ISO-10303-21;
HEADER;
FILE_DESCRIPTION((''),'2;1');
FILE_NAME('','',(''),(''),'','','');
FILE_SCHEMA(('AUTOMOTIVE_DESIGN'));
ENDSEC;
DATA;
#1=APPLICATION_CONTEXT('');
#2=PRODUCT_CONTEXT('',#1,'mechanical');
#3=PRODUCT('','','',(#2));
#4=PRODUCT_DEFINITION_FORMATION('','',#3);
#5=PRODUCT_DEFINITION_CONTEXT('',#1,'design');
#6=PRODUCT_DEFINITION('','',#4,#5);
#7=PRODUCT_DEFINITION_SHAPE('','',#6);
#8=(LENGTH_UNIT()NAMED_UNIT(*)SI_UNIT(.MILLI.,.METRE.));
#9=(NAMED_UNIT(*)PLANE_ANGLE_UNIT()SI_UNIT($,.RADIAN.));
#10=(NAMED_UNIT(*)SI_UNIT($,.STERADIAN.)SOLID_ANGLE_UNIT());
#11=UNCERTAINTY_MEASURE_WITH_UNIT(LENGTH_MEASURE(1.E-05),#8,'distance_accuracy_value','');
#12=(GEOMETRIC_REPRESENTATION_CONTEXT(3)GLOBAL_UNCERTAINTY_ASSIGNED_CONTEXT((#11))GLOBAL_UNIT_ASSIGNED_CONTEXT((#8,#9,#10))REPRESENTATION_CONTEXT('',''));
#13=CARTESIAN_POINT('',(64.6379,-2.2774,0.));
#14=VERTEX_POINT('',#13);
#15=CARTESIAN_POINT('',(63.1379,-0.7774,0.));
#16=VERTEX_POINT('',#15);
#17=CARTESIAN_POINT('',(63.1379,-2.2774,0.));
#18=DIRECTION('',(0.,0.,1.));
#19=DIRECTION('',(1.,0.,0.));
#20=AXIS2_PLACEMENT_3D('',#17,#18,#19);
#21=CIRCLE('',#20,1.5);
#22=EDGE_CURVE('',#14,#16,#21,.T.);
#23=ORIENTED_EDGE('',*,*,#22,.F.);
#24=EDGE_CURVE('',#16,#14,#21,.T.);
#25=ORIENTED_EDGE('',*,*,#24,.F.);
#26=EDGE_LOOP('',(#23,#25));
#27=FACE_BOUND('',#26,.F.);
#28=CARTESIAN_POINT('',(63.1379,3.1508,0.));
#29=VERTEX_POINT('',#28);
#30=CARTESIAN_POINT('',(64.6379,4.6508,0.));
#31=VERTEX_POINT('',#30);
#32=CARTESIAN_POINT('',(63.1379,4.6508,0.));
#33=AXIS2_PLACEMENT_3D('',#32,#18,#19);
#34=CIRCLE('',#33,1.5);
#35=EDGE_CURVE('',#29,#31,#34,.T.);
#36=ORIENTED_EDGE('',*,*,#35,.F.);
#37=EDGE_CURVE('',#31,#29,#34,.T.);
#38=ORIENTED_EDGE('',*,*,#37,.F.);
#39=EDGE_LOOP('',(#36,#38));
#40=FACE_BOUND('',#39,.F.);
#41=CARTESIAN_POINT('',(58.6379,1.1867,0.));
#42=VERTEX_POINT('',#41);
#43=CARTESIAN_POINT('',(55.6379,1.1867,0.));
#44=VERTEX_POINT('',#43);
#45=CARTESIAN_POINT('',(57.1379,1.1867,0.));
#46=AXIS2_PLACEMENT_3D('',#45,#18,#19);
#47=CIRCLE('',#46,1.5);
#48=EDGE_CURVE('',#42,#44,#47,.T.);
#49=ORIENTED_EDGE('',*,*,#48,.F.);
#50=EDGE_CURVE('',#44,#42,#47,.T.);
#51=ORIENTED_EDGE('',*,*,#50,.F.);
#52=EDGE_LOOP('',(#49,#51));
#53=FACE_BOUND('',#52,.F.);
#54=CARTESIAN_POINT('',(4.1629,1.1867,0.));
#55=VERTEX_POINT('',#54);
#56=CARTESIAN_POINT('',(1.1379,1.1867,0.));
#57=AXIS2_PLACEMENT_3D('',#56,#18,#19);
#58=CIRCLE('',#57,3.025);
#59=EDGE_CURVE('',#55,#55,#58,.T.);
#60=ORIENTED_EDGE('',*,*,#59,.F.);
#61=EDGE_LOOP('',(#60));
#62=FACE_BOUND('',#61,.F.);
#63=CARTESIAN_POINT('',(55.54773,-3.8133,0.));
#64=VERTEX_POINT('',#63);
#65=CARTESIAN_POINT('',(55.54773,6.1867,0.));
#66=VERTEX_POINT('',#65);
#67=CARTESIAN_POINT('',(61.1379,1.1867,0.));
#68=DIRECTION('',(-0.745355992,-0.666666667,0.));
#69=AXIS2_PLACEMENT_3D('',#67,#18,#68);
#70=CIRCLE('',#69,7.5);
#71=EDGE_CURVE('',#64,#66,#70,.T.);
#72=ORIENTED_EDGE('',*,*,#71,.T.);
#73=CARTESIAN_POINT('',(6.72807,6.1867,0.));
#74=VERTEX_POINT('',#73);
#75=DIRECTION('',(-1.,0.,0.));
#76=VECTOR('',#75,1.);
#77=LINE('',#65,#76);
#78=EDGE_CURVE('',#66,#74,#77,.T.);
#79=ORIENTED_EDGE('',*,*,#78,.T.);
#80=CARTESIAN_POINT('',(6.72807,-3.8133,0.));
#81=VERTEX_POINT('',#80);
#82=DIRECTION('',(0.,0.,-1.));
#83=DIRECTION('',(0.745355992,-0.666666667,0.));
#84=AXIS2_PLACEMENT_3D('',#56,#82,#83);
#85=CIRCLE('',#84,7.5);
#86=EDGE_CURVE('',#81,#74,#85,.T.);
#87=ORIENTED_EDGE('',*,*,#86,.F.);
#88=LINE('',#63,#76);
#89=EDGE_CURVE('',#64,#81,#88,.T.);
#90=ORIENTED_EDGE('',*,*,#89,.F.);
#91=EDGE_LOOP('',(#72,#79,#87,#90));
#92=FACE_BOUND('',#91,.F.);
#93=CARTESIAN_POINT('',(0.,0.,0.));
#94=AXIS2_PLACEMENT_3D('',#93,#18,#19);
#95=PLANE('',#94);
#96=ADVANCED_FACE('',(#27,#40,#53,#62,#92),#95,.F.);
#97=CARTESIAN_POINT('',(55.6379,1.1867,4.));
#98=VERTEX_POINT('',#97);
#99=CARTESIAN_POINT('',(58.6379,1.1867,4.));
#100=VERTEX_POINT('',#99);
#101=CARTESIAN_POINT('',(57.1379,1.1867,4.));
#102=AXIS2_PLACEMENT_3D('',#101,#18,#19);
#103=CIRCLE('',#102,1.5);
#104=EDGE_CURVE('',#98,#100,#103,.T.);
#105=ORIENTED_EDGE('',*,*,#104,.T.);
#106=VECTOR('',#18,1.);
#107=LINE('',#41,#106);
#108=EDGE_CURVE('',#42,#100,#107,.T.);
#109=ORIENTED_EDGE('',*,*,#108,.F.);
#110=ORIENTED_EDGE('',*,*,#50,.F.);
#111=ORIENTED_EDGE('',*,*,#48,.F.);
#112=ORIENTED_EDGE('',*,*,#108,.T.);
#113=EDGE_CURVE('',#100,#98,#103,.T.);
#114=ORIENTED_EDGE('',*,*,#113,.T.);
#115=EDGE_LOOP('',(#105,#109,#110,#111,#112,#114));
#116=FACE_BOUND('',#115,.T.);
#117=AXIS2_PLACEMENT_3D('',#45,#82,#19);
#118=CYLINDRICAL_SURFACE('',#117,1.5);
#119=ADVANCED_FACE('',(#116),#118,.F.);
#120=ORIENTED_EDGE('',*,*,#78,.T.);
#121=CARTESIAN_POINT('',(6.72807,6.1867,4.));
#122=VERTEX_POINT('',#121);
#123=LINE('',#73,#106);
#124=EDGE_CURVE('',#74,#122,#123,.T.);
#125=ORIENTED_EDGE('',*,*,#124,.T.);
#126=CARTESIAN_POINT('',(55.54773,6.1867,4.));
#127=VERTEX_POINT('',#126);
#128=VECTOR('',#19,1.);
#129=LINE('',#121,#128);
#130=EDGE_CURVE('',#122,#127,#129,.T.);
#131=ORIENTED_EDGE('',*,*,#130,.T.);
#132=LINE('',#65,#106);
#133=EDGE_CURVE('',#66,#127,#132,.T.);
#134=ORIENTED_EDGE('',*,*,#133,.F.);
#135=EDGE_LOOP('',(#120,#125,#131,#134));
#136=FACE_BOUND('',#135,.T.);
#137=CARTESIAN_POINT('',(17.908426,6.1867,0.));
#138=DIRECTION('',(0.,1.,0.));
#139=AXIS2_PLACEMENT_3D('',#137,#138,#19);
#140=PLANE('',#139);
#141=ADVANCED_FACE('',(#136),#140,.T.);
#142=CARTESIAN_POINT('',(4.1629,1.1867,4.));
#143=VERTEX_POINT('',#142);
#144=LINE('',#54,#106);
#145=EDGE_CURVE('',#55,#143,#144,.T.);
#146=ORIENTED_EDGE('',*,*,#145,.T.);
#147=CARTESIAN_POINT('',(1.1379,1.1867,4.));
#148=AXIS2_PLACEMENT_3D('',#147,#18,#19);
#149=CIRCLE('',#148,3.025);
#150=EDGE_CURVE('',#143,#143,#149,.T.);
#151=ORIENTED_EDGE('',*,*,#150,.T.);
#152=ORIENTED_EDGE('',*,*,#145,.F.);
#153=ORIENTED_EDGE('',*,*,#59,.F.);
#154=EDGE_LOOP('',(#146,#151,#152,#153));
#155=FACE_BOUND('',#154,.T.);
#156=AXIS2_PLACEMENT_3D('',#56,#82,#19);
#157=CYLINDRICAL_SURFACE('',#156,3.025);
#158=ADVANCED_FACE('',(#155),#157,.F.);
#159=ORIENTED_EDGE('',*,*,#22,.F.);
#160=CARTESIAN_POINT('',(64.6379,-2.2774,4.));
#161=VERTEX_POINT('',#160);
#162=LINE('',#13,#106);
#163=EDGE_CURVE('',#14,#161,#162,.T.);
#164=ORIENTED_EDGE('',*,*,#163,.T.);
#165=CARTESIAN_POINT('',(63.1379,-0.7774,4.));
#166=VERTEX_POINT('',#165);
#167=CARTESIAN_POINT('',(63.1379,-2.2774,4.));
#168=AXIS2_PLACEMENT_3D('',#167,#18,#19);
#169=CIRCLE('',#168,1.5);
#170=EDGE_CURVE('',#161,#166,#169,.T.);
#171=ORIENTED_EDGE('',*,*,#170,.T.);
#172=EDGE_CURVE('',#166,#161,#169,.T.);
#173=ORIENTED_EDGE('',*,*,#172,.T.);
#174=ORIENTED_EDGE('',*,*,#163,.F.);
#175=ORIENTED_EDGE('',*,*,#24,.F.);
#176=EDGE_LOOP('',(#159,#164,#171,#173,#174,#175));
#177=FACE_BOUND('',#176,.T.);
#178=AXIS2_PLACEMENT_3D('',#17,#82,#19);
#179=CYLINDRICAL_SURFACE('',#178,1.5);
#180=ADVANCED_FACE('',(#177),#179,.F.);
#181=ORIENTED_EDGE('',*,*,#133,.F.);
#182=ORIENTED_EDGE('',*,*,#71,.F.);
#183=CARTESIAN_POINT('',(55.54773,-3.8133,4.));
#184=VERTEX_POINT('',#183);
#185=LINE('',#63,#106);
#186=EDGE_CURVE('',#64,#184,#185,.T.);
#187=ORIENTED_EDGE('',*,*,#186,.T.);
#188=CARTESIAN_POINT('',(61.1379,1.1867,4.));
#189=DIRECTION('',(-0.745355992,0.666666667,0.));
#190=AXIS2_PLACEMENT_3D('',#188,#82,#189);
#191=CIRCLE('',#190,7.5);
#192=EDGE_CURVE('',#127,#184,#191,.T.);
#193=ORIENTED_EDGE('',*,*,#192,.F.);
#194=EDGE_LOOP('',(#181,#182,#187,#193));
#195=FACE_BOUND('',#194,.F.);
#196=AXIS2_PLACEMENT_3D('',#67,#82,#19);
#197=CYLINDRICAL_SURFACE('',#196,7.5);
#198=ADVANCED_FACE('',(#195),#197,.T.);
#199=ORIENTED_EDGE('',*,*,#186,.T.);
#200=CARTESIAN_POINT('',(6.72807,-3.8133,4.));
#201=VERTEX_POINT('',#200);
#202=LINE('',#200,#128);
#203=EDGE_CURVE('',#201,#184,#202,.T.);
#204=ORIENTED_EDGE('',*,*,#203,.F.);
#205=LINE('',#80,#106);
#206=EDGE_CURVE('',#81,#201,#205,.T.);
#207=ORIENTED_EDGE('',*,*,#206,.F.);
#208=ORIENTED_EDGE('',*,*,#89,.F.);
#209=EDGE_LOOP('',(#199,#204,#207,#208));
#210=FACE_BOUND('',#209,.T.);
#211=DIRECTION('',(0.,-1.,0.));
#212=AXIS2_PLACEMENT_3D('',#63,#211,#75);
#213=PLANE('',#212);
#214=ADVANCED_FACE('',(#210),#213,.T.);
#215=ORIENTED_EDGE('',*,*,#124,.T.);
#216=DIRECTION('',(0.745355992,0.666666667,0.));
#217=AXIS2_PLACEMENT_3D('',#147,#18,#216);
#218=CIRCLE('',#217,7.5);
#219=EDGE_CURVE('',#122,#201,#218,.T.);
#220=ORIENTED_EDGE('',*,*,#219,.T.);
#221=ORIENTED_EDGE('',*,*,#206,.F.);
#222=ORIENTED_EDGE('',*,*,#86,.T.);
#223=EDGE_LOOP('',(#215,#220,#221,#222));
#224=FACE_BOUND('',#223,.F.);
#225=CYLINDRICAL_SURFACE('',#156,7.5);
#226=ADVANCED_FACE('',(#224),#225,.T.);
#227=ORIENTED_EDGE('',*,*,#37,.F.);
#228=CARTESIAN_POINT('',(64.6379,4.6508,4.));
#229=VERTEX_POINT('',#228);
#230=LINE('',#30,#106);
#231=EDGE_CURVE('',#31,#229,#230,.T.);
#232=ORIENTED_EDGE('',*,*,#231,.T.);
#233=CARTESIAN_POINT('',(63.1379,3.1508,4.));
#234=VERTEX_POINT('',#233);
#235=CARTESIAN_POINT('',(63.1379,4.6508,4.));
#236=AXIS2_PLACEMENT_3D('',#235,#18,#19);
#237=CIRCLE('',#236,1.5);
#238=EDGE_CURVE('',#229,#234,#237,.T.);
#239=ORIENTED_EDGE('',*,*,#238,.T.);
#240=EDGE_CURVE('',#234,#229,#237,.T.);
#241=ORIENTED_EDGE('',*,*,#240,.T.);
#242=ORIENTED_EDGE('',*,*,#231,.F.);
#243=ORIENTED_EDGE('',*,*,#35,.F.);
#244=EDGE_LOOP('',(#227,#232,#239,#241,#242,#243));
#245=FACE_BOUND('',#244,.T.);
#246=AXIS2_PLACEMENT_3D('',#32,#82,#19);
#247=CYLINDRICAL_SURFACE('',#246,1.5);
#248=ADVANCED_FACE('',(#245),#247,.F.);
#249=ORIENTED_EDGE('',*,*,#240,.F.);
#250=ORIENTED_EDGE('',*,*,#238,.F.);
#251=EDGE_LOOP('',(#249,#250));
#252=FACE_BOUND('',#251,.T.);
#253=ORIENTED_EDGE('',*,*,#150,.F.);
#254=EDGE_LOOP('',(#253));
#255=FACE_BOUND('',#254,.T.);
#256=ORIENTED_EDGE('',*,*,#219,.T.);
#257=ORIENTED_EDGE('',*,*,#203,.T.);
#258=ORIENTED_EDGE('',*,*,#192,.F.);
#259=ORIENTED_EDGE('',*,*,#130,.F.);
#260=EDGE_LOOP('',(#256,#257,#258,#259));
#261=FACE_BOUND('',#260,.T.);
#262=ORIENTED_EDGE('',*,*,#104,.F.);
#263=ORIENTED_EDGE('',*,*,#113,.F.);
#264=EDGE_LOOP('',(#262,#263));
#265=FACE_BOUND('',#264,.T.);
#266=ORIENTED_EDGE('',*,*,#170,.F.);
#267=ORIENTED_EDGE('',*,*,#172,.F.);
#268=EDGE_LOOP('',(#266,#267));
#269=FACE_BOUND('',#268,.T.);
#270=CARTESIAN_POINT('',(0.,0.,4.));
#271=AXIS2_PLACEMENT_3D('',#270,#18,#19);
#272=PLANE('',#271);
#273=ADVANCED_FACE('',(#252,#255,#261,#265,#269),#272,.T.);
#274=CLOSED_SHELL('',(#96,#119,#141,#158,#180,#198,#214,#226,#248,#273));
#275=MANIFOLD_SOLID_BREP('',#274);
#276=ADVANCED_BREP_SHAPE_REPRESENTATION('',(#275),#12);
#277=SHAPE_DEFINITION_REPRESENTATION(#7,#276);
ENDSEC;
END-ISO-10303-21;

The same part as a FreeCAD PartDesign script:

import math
import FreeCAD as App
import Part
import Sketcher

V = App.Vector
Q = App.Units.Quantity

doc = App.newDocument("Part")
body = doc.addObject("PartDesign::Body", "Body")

# Sketch on XY plane
sketch1 = body.newObject("Sketcher::SketchObject", "Sketch")
sketch1.AttachmentSupport = (doc.getObject("XY_Plane"), [""])
sketch1.MapMode = "FlatFace"
sketch1.addGeometry(Part.LineSegment(V(55.5, 6.2, 0), V(6.7, 6.2, 0)), False)
sketch1.addGeometry(Part.ArcOfCircle(Part.Circle(V(1.1, 1.2, 0), V(0, 0, 1), 7.5), math.radians(42), math.radians(318)), False)
sketch1.addGeometry(Part.LineSegment(V(6.7, -3.8, 0), V(55.5, -3.8, 0)), False)
sketch1.addGeometry(Part.ArcOfCircle(Part.Circle(V(61.1, 1.2, 0), V(0, 0, 1), 7.5), math.radians(-138), math.radians(138)), False)
sketch1.addGeometry(Part.Circle(V(63.1, -2.3, 0), V(0, 0, 1), 1.5), False)
sketch1.addGeometry(Part.Circle(V(57.1, 1.2, 0), V(0, 0, 1), 1.5), False)
sketch1.addGeometry(Part.Circle(V(63.1, 4.7, 0), V(0, 0, 1), 1.5), False)
sketch1.addGeometry(Part.Circle(V(1.1, 1.2, 0), V(0, 0, 1), 3), False)
sketch1.addConstraint(Sketcher.Constraint("Coincident", 0, 2, 1, 1))
sketch1.addConstraint(Sketcher.Constraint("Coincident", 1, 2, 2, 1))
sketch1.addConstraint(Sketcher.Constraint("Coincident", 2, 2, 3, 1))
sketch1.addConstraint(Sketcher.Constraint("Coincident", 3, 2, 0, 1))
sketch1.addConstraint(Sketcher.Constraint("Horizontal", 0))
sketch1.addConstraint(Sketcher.Constraint("Horizontal", 2))
sketch1.addConstraint(Sketcher.Constraint("Coincident", 7, 3, 1, 3))
sketch1.addConstraint(Sketcher.Constraint("Equal", 1, 3))
sketch1.addConstraint(Sketcher.Constraint("Equal", 4, 5))
sketch1.addConstraint(Sketcher.Constraint("Equal", 5, 6))
sketch1.addConstraint(Sketcher.Constraint("Horizontal", 1, 3, 3, 3))
sketch1.addConstraint(Sketcher.Constraint("Horizontal", 3, 3, 5, 3))
sketch1.addConstraint(Sketcher.Constraint("Vertical", 4, 3, 6, 3))
sketch1.addConstraint(Sketcher.Constraint("Vertical", 0, 2, 1, 2))
sketch1.addConstraint(Sketcher.Constraint("Diameter", 4, Q("3 mm")))
sketch1.addConstraint(Sketcher.Constraint("Radius", 1, Q("7.5 mm")))
sketch1.addConstraint(Sketcher.Constraint("Diameter", 7, Q("6.05 mm")))
sketch1.addConstraint(Sketcher.Constraint("DistanceX", 1, 3, 3, 3, Q("60 mm")))
sketch1.addConstraint(Sketcher.Constraint("DistanceX", 5, 3, 3, 3, Q("4 mm")))
sketch1.addConstraint(Sketcher.Constraint("DistanceX", 3, 3, 4, 3, Q("2 mm")))
sketch1.addConstraint(Sketcher.Constraint("DistanceY", 1, 3, 0, 2, Q("5 mm")))
sketch1.addConstraint(Sketcher.Constraint("DistanceX", -1, 1, 1, 3, Q("1.138 mm")))
sketch1.addConstraint(Sketcher.Constraint("DistanceY", 4, 3, 3, 3, Q("3.464 mm")))
sketch1.addConstraint(Sketcher.Constraint("DistanceY", 3, 3, 6, 3, Q("3.464 mm")))
sketch1.addConstraint(Sketcher.Constraint("DistanceY", -1, 1, 1, 3, Q("1.1867 mm")))
pad1 = body.newObject("PartDesign::Pad", "Pad")
pad1.Profile = sketch1
pad1.Length = 4

doc.recompute()
